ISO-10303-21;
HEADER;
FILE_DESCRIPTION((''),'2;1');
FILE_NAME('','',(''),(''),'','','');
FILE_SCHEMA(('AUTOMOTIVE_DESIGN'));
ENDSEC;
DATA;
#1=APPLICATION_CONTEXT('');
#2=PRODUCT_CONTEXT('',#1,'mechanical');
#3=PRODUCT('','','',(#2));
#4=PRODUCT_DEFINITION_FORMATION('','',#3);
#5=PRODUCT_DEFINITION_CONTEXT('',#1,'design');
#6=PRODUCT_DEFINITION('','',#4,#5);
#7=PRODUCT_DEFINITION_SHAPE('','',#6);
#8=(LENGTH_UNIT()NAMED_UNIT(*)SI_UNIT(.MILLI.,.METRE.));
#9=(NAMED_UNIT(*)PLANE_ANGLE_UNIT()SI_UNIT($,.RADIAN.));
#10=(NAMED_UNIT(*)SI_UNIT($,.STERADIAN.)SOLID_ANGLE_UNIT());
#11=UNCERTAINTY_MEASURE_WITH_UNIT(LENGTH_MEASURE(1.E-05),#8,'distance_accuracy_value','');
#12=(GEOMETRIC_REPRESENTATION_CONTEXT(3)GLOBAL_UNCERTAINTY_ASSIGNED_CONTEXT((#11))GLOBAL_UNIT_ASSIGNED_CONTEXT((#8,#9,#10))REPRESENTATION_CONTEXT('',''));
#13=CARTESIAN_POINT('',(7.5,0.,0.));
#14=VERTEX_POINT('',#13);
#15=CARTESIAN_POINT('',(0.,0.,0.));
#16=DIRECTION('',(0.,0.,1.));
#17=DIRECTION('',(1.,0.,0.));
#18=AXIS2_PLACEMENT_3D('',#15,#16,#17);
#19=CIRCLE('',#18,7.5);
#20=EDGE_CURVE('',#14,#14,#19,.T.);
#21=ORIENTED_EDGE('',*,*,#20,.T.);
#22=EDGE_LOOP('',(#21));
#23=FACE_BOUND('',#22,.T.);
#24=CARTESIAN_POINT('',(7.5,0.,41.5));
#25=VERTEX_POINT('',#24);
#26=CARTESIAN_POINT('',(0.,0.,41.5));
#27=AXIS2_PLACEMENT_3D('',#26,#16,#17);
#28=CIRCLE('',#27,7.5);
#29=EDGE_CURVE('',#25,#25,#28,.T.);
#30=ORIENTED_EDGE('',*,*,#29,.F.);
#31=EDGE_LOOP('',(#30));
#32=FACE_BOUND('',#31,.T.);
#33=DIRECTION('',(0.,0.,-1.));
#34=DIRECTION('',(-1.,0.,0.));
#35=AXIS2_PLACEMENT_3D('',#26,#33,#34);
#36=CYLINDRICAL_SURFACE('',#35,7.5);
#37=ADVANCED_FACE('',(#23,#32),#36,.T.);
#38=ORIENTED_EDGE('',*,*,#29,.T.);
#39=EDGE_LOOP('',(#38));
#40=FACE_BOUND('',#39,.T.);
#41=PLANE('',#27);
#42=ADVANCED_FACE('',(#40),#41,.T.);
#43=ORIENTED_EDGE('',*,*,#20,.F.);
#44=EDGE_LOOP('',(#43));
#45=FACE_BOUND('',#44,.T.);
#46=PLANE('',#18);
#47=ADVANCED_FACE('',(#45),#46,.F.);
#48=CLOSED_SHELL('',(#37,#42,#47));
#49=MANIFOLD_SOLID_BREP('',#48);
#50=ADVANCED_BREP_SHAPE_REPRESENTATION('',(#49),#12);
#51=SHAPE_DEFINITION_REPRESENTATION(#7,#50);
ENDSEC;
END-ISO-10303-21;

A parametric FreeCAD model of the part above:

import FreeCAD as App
import Part
import Sketcher
from FreeCAD import Vector
Q = App.Units.Quantity

doc = App.newDocument("Part")
params = doc.addObject("Spreadsheet::Sheet", "Params")
for row, (alias, value) in enumerate([
    ("sketch1_diameter", "15 mm"),
    ("pad1_length", "41.5 mm"),
], start=1):
    params.set(f"A{row}", alias)
    params.set(f"B{row}", "=" + value)
    params.setAlias(f"B{row}", alias)

body = doc.addObject("PartDesign::Body", "Body")

sketch1 = body.newObject("Sketcher::SketchObject", "Sketch")
sketch1.AttachmentSupport = (doc.getObject("XY_Plane"), [""])
sketch1.MapMode = "FlatFace"
sketch1.addGeometry(Part.Circle(Vector(0, 0, 0), Vector(0, 0, 1), 8), False)
sketch1.addConstraint(Sketcher.Constraint("Coincident", 0, 3, -1, 1))
sketch1.addConstraint(Sketcher.Constraint("Diameter", 0, Q("15 mm")))
sketch1.setExpression("Constraints[1]", "Params.sketch1_diameter")
pad1 = body.newObject("PartDesign::Pad", "Pad")
pad1.Profile = sketch1
pad1.setExpression("Length", "Params.pad1_length")

doc.recompute()
